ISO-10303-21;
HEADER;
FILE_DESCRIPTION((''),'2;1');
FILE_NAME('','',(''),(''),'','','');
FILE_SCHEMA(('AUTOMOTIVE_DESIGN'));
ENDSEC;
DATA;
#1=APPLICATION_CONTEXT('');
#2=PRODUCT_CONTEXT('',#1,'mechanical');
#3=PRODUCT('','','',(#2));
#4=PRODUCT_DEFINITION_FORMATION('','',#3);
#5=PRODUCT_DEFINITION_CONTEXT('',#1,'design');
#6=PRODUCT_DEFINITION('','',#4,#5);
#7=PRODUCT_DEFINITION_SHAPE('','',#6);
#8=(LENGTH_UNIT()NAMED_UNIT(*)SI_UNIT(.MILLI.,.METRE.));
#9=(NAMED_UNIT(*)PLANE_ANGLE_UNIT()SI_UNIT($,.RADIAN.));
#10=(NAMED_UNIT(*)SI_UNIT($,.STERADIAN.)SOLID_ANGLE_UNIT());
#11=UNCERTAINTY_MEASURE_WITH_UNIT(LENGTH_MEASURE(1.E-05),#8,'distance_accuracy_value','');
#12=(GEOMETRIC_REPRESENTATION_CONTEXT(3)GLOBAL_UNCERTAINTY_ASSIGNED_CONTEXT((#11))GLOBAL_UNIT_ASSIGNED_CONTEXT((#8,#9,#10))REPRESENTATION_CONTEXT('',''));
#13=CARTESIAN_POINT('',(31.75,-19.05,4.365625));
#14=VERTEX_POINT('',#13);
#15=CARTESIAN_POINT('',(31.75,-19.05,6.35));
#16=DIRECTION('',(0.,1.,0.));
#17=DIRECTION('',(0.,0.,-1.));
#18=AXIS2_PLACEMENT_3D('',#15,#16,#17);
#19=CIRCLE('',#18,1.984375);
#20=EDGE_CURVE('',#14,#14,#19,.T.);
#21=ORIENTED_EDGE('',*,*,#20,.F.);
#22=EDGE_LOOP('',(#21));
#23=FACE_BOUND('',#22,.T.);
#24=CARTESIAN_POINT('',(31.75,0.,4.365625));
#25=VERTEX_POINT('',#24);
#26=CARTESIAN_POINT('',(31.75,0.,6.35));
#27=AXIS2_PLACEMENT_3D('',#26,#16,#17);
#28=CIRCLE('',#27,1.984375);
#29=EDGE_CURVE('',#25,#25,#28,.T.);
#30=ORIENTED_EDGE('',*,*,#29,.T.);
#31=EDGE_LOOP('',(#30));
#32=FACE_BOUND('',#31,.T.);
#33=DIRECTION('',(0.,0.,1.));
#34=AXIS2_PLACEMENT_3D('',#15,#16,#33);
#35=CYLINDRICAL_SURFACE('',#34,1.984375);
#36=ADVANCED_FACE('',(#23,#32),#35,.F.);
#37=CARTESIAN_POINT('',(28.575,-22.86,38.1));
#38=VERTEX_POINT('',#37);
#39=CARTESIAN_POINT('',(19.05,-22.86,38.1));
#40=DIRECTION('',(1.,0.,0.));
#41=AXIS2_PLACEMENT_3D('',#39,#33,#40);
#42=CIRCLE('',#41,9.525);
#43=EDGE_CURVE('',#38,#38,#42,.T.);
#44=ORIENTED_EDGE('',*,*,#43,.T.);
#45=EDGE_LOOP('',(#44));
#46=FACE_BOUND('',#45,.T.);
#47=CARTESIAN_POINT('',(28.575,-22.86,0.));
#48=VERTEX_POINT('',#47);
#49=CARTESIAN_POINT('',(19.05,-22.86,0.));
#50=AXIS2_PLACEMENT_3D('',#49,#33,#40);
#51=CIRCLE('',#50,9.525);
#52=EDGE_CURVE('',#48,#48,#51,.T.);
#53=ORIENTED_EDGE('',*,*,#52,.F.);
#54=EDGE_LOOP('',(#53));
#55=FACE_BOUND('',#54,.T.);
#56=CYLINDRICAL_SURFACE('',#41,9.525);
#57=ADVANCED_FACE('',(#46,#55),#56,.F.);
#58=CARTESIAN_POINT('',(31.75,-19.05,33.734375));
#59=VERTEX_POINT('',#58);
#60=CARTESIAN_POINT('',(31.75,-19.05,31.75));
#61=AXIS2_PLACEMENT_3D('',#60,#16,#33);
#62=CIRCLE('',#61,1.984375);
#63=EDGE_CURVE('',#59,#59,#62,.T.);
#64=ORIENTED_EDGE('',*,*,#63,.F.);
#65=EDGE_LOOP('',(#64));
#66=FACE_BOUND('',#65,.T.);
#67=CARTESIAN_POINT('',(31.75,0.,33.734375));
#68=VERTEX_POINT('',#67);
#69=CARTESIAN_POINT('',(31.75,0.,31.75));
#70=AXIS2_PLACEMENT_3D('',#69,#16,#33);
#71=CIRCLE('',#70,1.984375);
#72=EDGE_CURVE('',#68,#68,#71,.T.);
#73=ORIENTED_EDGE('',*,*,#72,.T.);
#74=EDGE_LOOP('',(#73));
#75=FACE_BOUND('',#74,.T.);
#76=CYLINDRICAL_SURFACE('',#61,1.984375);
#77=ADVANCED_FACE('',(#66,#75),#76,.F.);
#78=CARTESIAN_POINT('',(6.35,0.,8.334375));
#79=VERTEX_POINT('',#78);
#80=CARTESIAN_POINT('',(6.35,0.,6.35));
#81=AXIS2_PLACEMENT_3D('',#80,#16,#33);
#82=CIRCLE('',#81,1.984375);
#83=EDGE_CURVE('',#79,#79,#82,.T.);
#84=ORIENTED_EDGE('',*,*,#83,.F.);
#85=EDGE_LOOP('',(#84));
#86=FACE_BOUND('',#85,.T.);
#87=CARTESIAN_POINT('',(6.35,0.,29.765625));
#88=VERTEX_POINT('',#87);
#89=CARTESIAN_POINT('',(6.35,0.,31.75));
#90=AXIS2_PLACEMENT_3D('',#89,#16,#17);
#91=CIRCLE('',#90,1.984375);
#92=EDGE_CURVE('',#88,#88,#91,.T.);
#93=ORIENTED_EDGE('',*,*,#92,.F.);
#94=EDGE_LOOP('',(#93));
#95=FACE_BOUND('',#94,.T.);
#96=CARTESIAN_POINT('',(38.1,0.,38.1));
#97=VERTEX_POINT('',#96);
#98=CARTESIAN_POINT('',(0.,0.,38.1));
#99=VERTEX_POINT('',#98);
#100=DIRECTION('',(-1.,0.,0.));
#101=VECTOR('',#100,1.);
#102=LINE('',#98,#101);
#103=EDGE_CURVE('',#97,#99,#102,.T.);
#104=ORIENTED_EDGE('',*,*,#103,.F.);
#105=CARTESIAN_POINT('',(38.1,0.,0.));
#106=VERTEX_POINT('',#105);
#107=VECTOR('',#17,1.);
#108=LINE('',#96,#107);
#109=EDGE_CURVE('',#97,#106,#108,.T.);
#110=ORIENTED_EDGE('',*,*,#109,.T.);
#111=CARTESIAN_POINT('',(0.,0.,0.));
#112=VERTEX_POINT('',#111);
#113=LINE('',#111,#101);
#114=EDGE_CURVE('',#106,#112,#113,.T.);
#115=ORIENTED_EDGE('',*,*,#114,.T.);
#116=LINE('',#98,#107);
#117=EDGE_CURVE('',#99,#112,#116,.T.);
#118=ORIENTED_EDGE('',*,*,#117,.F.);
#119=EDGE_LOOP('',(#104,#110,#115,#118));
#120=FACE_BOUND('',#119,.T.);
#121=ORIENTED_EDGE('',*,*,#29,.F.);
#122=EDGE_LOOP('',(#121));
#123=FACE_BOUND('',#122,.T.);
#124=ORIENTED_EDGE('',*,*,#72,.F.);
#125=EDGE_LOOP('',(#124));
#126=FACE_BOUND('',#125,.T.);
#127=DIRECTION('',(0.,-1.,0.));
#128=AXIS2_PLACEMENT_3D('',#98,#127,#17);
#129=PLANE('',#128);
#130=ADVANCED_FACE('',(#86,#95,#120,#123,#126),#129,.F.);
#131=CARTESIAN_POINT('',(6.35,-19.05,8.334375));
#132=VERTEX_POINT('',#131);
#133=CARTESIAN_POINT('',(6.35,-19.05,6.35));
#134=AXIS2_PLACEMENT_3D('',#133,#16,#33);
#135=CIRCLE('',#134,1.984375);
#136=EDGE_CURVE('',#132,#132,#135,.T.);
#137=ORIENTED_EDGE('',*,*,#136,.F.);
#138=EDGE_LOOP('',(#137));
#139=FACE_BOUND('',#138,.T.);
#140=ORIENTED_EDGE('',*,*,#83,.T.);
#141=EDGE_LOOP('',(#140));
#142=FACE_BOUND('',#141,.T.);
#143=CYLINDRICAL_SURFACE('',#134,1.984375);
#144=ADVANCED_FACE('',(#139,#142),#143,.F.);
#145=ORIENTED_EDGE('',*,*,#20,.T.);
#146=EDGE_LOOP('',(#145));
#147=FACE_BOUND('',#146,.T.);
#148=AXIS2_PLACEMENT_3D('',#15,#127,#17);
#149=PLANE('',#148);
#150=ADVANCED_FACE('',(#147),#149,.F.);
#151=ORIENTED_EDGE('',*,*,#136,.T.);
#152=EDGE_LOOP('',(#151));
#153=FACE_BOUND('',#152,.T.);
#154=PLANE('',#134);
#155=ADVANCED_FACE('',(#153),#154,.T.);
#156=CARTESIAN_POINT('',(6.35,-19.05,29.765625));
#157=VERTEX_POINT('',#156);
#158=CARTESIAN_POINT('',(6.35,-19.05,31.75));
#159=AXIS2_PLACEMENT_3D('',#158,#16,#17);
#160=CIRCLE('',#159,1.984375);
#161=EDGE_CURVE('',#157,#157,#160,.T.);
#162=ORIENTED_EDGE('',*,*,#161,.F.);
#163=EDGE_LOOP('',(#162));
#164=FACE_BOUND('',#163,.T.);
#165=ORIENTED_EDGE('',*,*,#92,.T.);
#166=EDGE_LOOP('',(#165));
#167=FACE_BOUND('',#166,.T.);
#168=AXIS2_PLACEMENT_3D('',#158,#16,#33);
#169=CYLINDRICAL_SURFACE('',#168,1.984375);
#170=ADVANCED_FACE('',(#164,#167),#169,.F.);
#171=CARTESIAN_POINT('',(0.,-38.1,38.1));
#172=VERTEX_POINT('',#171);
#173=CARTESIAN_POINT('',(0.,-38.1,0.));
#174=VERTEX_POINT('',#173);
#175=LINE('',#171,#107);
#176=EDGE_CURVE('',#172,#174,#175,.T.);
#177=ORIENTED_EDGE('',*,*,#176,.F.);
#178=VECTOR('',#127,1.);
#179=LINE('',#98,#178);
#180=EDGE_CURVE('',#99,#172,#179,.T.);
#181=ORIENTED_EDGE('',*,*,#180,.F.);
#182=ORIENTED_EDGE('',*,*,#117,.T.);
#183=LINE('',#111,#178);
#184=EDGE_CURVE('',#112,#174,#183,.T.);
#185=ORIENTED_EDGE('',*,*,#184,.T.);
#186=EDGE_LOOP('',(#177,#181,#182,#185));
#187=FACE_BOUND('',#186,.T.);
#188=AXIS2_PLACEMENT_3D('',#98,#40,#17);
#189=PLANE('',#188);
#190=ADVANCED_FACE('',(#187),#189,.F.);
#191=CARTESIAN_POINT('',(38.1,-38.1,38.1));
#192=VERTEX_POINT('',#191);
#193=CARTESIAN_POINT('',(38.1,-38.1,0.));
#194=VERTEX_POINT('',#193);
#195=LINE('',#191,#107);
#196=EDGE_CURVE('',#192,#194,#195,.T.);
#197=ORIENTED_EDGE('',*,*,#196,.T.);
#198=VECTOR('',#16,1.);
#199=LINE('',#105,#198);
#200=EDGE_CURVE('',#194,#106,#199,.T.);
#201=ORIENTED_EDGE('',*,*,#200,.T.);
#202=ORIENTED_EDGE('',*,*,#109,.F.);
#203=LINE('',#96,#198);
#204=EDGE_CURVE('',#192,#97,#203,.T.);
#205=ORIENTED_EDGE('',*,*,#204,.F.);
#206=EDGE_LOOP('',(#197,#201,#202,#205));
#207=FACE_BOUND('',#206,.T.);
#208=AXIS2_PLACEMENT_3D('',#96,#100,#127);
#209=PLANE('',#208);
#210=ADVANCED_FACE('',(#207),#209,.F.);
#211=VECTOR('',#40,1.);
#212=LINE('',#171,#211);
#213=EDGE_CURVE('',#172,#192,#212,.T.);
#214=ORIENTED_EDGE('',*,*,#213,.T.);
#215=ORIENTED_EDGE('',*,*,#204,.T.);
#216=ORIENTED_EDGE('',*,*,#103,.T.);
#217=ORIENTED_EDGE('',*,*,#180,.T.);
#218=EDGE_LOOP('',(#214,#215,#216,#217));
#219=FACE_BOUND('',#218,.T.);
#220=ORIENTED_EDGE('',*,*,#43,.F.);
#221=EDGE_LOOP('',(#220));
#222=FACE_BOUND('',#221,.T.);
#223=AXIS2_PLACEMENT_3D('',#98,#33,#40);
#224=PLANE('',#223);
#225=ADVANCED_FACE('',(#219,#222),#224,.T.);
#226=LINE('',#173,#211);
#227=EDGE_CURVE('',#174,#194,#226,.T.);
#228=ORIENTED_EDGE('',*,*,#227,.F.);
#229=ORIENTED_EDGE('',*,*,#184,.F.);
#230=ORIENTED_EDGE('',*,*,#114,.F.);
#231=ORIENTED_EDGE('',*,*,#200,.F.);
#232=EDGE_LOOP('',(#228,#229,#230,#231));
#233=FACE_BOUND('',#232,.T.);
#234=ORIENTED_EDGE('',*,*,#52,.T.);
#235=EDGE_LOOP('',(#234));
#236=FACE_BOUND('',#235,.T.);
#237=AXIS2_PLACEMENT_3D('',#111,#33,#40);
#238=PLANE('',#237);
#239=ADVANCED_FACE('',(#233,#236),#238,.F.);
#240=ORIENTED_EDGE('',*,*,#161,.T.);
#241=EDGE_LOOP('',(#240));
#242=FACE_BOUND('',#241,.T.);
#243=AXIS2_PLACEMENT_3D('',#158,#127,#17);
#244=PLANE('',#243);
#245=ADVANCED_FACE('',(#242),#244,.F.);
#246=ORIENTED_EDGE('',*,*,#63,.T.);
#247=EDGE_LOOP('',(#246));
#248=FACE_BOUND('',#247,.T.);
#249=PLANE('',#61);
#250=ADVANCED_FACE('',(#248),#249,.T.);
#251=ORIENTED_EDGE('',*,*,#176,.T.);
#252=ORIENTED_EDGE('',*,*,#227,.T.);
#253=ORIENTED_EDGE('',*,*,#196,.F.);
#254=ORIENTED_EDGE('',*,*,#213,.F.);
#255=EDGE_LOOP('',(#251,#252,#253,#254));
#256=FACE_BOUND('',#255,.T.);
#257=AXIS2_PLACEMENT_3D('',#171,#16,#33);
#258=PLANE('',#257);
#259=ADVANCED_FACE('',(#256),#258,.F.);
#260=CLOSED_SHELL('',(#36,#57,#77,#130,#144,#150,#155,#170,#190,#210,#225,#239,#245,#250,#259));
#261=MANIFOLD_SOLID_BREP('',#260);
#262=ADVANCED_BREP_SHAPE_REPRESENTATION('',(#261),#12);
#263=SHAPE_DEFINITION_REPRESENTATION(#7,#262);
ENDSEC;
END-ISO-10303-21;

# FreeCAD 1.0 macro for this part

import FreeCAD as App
import Part
import Sketcher
from FreeCAD import Vector
Q = App.Units.Quantity

doc = App.newDocument("Part")
params = doc.addObject("Spreadsheet::Sheet", "Params")
for row, (alias, value) in enumerate([
    ("sketch1_width", "1.5 in"),
    ("pad1_length", "1.5 in"),
    ("sketch2_diameter", "0.15625 in"),
    ("pocket1_length", "0.75 in"),
    ("sketch3_diameter", "0.75 in"),
    ("hole_diameter", "0.75 in"),
], start=1):
    params.set(f"A{row}", alias)
    params.set(f"B{row}", "=" + value)
    params.setAlias(f"B{row}", alias)

body = doc.addObject("PartDesign::Body", "Body")

sketch1 = body.newObject("Sketcher::SketchObject", "Sketch")
sketch1.AttachmentSupport = (doc.getObject("XY_Plane"), [""])
sketch1.MapMode = "FlatFace"
sketch1.addGeometry(Part.LineSegment(Vector(0, 0, 0), Vector(0, -38.1, 0)), False)
sketch1.addGeometry(Part.LineSegment(Vector(0, -38.1, 0), Vector(38.1, -38.1, 0)), False)
sketch1.addGeometry(Part.LineSegment(Vector(38.1, -38.1, 0), Vector(38.1, 0, 0)), False)
sketch1.addGeometry(Part.LineSegment(Vector(38.1, 0, 0), Vector(0, 0, 0)), False)
sketch1.addConstraint(Sketcher.Constraint("Coincident", 0, 2, 1, 1))
sketch1.addConstraint(Sketcher.Constraint("Coincident", 1, 2, 2, 1))
sketch1.addConstraint(Sketcher.Constraint("Coincident", 2, 2, 3, 1))
sketch1.addConstraint(Sketcher.Constraint("Coincident", 3, 2, 0, 1))
sketch1.addConstraint(Sketcher.Constraint("Vertical", 0))
sketch1.addConstraint(Sketcher.Constraint("Horizontal", 1))
sketch1.addConstraint(Sketcher.Constraint("Vertical", 2))
sketch1.addConstraint(Sketcher.Constraint("Horizontal", 3))
sketch1.addConstraint(Sketcher.Constraint("Coincident", 3, 2, -1, 1))
sketch1.addConstraint(Sketcher.Constraint("Equal", 3, 0))
sketch1.addConstraint(Sketcher.Constraint("DistanceX", 1, 1, 1, 2, Q("1.5 in")))
sketch1.setExpression("Constraints[10]", "Params.sketch1_width")
pad1 = body.newObject("PartDesign::Pad", "Pad")
pad1.Profile = sketch1
pad1.setExpression("Length", "Params.pad1_length")

sketch2 = body.newObject("Sketcher::SketchObject", "Sketch001")
sketch2.AttachmentSupport = (doc.getObject("XZ_Plane"), [""])
sketch2.MapMode = "FlatFace"
sketch2.addGeometry(Part.Circle(Vector(6.35, 6.35, 0), Vector(0, 0, 1), 1.984375), False)
sketch2.addGeometry(Part.Circle(Vector(6.35, 31.75, 0), Vector(0, 0, 1), 1.984375), False)
sketch2.addGeometry(Part.Circle(Vector(31.75, 6.35, 0), Vector(0, 0, 1), 1.984375), False)
sketch2.addGeometry(Part.Circle(Vector(31.75, 31.75, 0), Vector(0, 0, 1), 1.984375), False)
sketch2.addConstraint(Sketcher.Constraint("Equal", 0, 1))
sketch2.addConstraint(Sketcher.Constraint("Equal", 1, 2))
sketch2.addConstraint(Sketcher.Constraint("Equal", 2, 3))
sketch2.addConstraint(Sketcher.Constraint("Horizontal", 0, 3, 2, 3))
sketch2.addConstraint(Sketcher.Constraint("Horizontal", 1, 3, 3, 3))
sketch2.addConstraint(Sketcher.Constraint("Vertical", 0, 3, 1, 3))
sketch2.addConstraint(Sketcher.Constraint("Vertical", 2, 3, 3, 3))
sketch2.addConstraint(Sketcher.Constraint("Diameter", 0, Q("0.15625 in")))
sketch2.addConstraint(Sketcher.Constraint("DistanceY", 0, 3, 1, 3, Q("1 in")))
sketch2.addConstraint(Sketcher.Constraint("DistanceX", 0, 3, 2, 3, Q("1 in")))
sketch2.addConstraint(Sketcher.Constraint("DistanceX", -1, 1, 0, 3, Q("0.25 in")))
sketch2.addConstraint(Sketcher.Constraint("DistanceY", -1, 1, 0, 3, Q("0.25 in")))
sketch2.setExpression("Constraints[7]", "Params.sketch2_diameter")
pocket1 = body.newObject("PartDesign::Pocket", "Pocket")
pocket1.Profile = sketch2
pocket1.setExpression("Length", "Params.pocket1_length")
pocket1.Reversed = True

sketch3 = body.newObject("Sketcher::SketchObject", "Sketch002")
sketch3.AttachmentSupport = (doc.getObject("XY_Plane"), [""])
sketch3.MapMode = "FlatFace"
sketch3.AttachmentOffset = App.Placement(Vector(0, 0, 1.5 * 25.4), App.Rotation())
sketch3.addGeometry(Part.Circle(Vector(19.05, -22.86, 0), Vector(0, 0, 1), 9.525), False)
sketch3.addConstraint(Sketcher.Constraint("Diameter", 0, Q("0.75 in")))
sketch3.addConstraint(Sketcher.Constraint("DistanceY", 0, 3, -1, 1, Q("0.9 in")))
sketch3.addConstraint(Sketcher.Constraint("DistanceX", -1, 1, 0, 3, Q("0.75 in")))
sketch3.setExpression("Constraints[0]", "Params.sketch3_diameter")
doc.recompute()
hole = body.newObject("PartDesign::Hole", "Hole")
hole.Profile = sketch3
hole.ThreadType = "None"
hole.setExpression("Diameter", "Params.hole_diameter")
hole.DepthType = "ThroughAll"

doc.recompute()
